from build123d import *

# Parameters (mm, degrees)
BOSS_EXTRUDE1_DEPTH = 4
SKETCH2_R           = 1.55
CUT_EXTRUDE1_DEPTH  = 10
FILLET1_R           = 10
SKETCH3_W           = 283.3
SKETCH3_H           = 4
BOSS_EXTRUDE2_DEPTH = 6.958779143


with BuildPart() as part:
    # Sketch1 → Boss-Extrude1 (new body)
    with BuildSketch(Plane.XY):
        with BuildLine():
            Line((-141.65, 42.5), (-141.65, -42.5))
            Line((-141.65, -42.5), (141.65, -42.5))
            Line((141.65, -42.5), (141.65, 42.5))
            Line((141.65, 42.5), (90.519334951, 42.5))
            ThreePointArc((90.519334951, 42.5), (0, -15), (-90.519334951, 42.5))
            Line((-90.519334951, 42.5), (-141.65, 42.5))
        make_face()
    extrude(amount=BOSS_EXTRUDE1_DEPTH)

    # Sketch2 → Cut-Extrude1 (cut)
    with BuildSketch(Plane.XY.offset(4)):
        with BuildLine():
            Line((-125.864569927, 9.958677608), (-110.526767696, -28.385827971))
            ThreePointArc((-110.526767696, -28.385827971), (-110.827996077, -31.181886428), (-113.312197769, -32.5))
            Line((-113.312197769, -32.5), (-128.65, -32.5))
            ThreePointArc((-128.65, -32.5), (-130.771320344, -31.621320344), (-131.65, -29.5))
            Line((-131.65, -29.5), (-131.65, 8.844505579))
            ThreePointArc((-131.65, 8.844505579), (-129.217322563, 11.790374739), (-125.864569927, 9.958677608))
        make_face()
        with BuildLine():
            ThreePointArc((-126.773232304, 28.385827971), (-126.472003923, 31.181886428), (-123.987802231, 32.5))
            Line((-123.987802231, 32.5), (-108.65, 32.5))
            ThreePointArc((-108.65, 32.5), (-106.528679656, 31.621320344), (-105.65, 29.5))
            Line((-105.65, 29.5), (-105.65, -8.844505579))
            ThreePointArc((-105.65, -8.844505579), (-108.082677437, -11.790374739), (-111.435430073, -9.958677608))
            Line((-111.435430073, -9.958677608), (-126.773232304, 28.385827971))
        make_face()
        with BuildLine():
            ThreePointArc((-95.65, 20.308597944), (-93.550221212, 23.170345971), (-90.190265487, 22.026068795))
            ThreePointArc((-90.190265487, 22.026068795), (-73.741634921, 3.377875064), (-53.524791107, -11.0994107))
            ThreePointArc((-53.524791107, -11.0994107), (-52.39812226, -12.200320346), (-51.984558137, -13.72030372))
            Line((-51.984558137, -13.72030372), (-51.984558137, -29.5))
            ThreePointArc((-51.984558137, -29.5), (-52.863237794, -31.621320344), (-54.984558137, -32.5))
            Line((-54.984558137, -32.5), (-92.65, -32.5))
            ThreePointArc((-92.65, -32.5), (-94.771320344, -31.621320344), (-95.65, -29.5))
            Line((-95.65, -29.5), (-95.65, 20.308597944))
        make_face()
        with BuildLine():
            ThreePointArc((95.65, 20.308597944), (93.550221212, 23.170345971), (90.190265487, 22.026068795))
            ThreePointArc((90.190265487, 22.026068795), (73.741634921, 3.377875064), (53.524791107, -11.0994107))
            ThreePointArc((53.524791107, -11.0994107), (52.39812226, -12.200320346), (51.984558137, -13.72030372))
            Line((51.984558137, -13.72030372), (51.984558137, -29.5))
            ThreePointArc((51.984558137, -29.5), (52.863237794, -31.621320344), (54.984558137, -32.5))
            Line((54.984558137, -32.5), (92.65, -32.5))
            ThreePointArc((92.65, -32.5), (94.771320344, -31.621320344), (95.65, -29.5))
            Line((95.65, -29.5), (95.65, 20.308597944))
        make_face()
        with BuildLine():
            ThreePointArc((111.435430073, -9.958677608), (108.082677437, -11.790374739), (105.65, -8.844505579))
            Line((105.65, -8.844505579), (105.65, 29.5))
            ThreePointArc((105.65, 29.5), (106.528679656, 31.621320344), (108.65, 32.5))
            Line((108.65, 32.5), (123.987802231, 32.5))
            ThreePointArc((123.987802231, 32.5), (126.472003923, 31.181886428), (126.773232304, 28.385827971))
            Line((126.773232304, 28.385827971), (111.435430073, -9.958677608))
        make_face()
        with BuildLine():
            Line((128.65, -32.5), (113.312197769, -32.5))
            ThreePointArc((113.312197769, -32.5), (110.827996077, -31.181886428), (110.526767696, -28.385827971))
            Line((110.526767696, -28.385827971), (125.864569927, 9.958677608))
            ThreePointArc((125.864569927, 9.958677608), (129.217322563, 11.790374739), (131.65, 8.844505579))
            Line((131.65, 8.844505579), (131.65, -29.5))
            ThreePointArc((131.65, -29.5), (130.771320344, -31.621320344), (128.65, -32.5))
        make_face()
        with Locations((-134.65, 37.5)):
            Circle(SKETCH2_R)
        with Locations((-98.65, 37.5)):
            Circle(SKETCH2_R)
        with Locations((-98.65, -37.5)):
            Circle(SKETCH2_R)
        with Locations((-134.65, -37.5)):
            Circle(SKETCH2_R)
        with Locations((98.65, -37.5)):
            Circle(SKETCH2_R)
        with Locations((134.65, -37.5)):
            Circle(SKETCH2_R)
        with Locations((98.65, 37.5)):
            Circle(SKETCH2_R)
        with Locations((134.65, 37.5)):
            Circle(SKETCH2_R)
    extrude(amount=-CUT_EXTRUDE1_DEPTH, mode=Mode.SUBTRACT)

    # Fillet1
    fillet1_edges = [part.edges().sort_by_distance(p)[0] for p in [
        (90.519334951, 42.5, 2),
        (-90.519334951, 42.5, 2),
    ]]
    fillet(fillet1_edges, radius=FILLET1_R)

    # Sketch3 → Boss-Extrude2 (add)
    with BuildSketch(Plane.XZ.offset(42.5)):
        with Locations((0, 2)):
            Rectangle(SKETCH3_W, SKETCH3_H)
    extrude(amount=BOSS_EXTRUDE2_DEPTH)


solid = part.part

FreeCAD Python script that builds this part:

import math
import FreeCAD as App
import Part
import Sketcher

V = App.Vector


def edges_at(feature, points):
    """Names of the edges that pass closest to the given points."""
    edges = feature.Shape.Edges
    near = lambda p: min(range(len(edges)), key=lambda i: edges[i].distToShape(Part.Vertex(*p))[0])
    return sorted({f"Edge{near(p) + 1}" for p in points})


def add_polygon(sketch, points):
    """Adds a closed chain of lines whose ends are joined by coincident constraints."""
    first, n = sketch.GeometryCount, len(points)
    for a, b in zip(points, points[1:] + points[:1]):
        sketch.addGeometry(Part.LineSegment(App.Vector(*a, 0), App.Vector(*b, 0)), False)
    for i in range(n):
        sketch.addConstraint(Sketcher.Constraint("Coincident", first + i, 2, first + (i + 1) % n, 1))

doc = App.newDocument("Part")
body = doc.addObject("PartDesign::Body", "Body")

sketch1 = doc.addObject("Sketcher::SketchObject", "Sketch")
body.addObject(sketch1)
sketch1.AttachmentSupport = (doc.XY_Plane, [""])
sketch1.MapMode = "FlatFace"
sketch1.addGeometry(Part.LineSegment(V(-142, 42, 0), V(-142, -42, 0)), False)
sketch1.addGeometry(Part.LineSegment(V(-142, -42, 0), V(142, -42, 0)), False)
sketch1.addGeometry(Part.LineSegment(V(142, -42, 0), V(142, 42, 0)), False)
sketch1.addGeometry(Part.LineSegment(V(142, 42, 0), V(91, 42, 0)), False)
sketch1.addGeometry(Part.ArcOfCircle(Part.Circle(V(0, 85, 0), V(0, 0, 1), 100), math.radians(-155), math.radians(-25)), False)
sketch1.addGeometry(Part.LineSegment(V(-91, 42, 0), V(-142, 42, 0)), False)
sketch1.addConstraint(Sketcher.Constraint("Coincident", 0, 2, 1, 1))
sketch1.addConstraint(Sketcher.Constraint("Coincident", 1, 2, 2, 1))
sketch1.addConstraint(Sketcher.Constraint("Coincident", 2, 2, 3, 1))
sketch1.addConstraint(Sketcher.Constraint("Coincident", 3, 2, 4, 2))
sketch1.addConstraint(Sketcher.Constraint("Coincident", 4, 1, 5, 1))
sketch1.addConstraint(Sketcher.Constraint("Coincident", 5, 2, 0, 1))
sketch1.addConstraint(Sketcher.Constraint("Vertical", 0))
sketch1.addConstraint(Sketcher.Constraint("Horizontal", 1))
sketch1.addConstraint(Sketcher.Constraint("Vertical", 2))
sketch1.addConstraint(Sketcher.Constraint("Horizontal", 3))
sketch1.addConstraint(Sketcher.Constraint("Horizontal", 5))
sketch1.addConstraint(Sketcher.Constraint("Symmetric", 0, 2, 2, 2, -1, 1))
sketch1.addConstraint(Sketcher.Constraint("Symmetric", 3, 2, 4, 1, -2))
sketch1.addConstraint(Sketcher.Constraint("Radius", 4, 100.0))
sketch1.addConstraint(Sketcher.Constraint("DistanceY", 0, 2, 0, 1, 85.0))
sketch1.addConstraint(Sketcher.Constraint("DistanceX", 1, 1, 1, 2, 283.3))
sketch1.addConstraint(Sketcher.Constraint("DistanceY", -1, 1, 4, 3, 85.0))
pad1 = doc.addObject("PartDesign::Pad", "Pad")
body.addObject(pad1)
pad1.Profile = sketch1
pad1.Length = 4

sketch2 = doc.addObject("Sketcher::SketchObject", "Sketch001")
body.addObject(sketch2)
sketch2.AttachmentSupport = (doc.XY_Plane, [""])
sketch2.MapMode = "FlatFace"
sketch2.AttachmentOffset = App.Placement(V(0, 0, 4), App.Rotation())
sketch2.addGeometry(Part.LineSegment(V(-110.5, -28.4, 0), V(-125.9, 10, 0)), False)
sketch2.addGeometry(Part.ArcOfCircle(Part.Circle(V(-128.7, 8.8, 0), V(0, 0, 1), 3), math.radians(22), math.radians(180)), False)
sketch2.addGeometry(Part.LineSegment(V(-131.7, 8.8, 0), V(-131.7, -29.5, 0)), False)
sketch2.addGeometry(Part.ArcOfCircle(Part.Circle(V(-128.7, -29.5, 0), V(0, 0, 1), 3), math.radians(180), math.radians(270)), False)
sketch2.addGeometry(Part.LineSegment(V(-128.7, -32.5, 0), V(-113.3, -32.5, 0)), False)
sketch2.addGeometry(Part.ArcOfCircle(Part.Circle(V(-113.3, -29.5, 0), V(0, 0, 1), 3), math.radians(-90), math.radians(22)), False)
sketch2.addGeometry(Part.ArcOfCircle(Part.Circle(V(-124, 29.5, 0), V(0, 0, 1), 3), math.radians(90), math.radians(202)), False)
sketch2.addGeometry(Part.LineSegment(V(-126.8, 28.4, 0), V(-111.4, -10, 0)), False)
sketch2.addGeometry(Part.ArcOfCircle(Part.Circle(V(-108.7, -8.8, 0), V(0, 0, 1), 3), math.radians(-158), math.radians(0)), False)
sketch2.addGeometry(Part.LineSegment(V(-105.7, -8.8, 0), V(-105.7, 29.5, 0)), False)
sketch2.addGeometry(Part.ArcOfCircle(Part.Circle(V(-108.6, 29.5, 0), V(0, 0, 1), 3), math.radians(0), math.radians(90)), False)
sketch2.addGeometry(Part.LineSegment(V(-108.7, 32.5, 0), V(-124, 32.5, 0)), False)
sketch2.addGeometry(Part.ArcOfCircle(Part.Circle(V(-92.7, 20.3, 0), V(0, 0, 1), 3), math.radians(35), math.radians(180)), False)
sketch2.addGeometry(Part.LineSegment(V(-95.7, 20.3, 0), V(-95.7, -29.5, 0)), False)
sketch2.addGeometry(Part.ArcOfCircle(Part.Circle(V(-92.7, -29.5, 0), V(0, 0, 1), 3), math.radians(180), math.radians(270)), False)
sketch2.addGeometry(Part.LineSegment(V(-92.7, -32.5, 0), V(-55, -32.5, 0)), False)
sketch2.addGeometry(Part.ArcOfCircle(Part.Circle(V(-55, -29.5, 0), V(0, 0, 1), 3), math.radians(-90), math.radians(0)), False)
sketch2.addGeometry(Part.LineSegment(V(-52, -29.5, 0), V(-52, -13.7, 0)), False)
sketch2.addGeometry(Part.ArcOfCircle(Part.Circle(V(-55, -13.7, 0), V(0, 0, 1), 3), math.radians(0), math.radians(61)), False)
sketch2.addGeometry(Part.ArcOfCircle(Part.Circle(V(0, 85, 0), V(0, 0, 1), 110), math.radians(-145), math.radians(-119)), False)
sketch2.addGeometry(Part.ArcOfCircle(Part.Circle(V(92.7, 20.3, 0), V(0, 0, 1), 3), math.radians(0), math.radians(145)), False)
sketch2.addGeometry(Part.ArcOfCircle(Part.Circle(V(0, 85, 0), V(0, 0, 1), 110), math.radians(-61), math.radians(-35)), False)
sketch2.addGeometry(Part.ArcOfCircle(Part.Circle(V(55, -13.7, 0), V(0, 0, 1), 3), math.radians(119), math.radians(180)), False)
sketch2.addGeometry(Part.LineSegment(V(52, -13.7, 0), V(52, -29.5, 0)), False)
sketch2.addGeometry(Part.ArcOfCircle(Part.Circle(V(55, -29.5, 0), V(0, 0, 1), 3), math.radians(180), math.radians(270)), False)
sketch2.addGeometry(Part.LineSegment(V(55, -32.5, 0), V(92.7, -32.5, 0)), False)
sketch2.addGeometry(Part.ArcOfCircle(Part.Circle(V(92.7, -29.5, 0), V(0, 0, 1), 3), math.radians(-90), math.radians(0)), False)
sketch2.addGeometry(Part.LineSegment(V(95.7, -29.5, 0), V(95.7, 20.3, 0)), False)
sketch2.addGeometry(Part.ArcOfCircle(Part.Circle(V(108.7, -8.8, 0), V(0, 0, 1), 3), math.radians(180), math.radians(338)), False)
sketch2.addGeometry(Part.LineSegment(V(111.4, -10, 0), V(126.8, 28.4, 0)), False)
sketch2.addGeometry(Part.ArcOfCircle(Part.Circle(V(124, 29.5, 0), V(0, 0, 1), 3), math.radians(-22), math.radians(90)), False)
sketch2.addGeometry(Part.LineSegment(V(124, 32.5, 0), V(108.7, 32.5, 0)), False)
sketch2.addGeometry(Part.ArcOfCircle(Part.Circle(V(108.6, 29.5, 0), V(0, 0, 1), 3), math.radians(90), math.radians(180)), False)
sketch2.addGeometry(Part.LineSegment(V(105.7, 29.5, 0), V(105.7, -8.8, 0)), False)
sketch2.addGeometry(Part.LineSegment(V(113.3, -32.5, 0), V(128.7, -32.5, 0)), False)
sketch2.addGeometry(Part.ArcOfCircle(Part.Circle(V(128.7, -29.5, 0), V(0, 0, 1), 3), math.radians(-90), math.radians(0)), False)
sketch2.addGeometry(Part.LineSegment(V(131.7, -29.5, 0), V(131.7, 8.8, 0)), False)
sketch2.addGeometry(Part.ArcOfCircle(Part.Circle(V(128.7, 8.8, 0), V(0, 0, 1), 3), math.radians(0), math.radians(158)), False)
sketch2.addGeometry(Part.LineSegment(V(125.9, 10, 0), V(110.5, -28.4, 0)), False)
sketch2.addGeometry(Part.ArcOfCircle(Part.Circle(V(113.3, -29.5, 0), V(0, 0, 1), 3), math.radians(158), math.radians(270)), False)
sketch2.addGeometry(Part.Circle(V(-134.7, 37.5, 0), V(0, 0, 1), 1.6), False)
sketch2.addGeometry(Part.Circle(V(-98.7, 37.5, 0), V(0, 0, 1), 1.6), False)
sketch2.addGeometry(Part.Circle(V(-98.7, -37.5, 0), V(0, 0, 1), 1.6), False)
sketch2.addGeometry(Part.Circle(V(-134.7, -37.5, 0), V(0, 0, 1), 1.6), False)
sketch2.addGeometry(Part.Circle(V(98.7, -37.5, 0), V(0, 0, 1), 1.6), False)
sketch2.addGeometry(Part.Circle(V(134.7, -37.5, 0), V(0, 0, 1), 1.6), False)
sketch2.addGeometry(Part.Circle(V(98.7, 37.5, 0), V(0, 0, 1), 1.6), False)
sketch2.addGeometry(Part.Circle(V(134.7, 37.5, 0), V(0, 0, 1), 1.6), False)
sketch2.addConstraint(Sketcher.Constraint("Tangent", 0, 2, 1, 1))
sketch2.addConstraint(Sketcher.Constraint("Tangent", 1, 2, 2, 1))
sketch2.addConstraint(Sketcher.Constraint("Tangent", 2, 2, 3, 1))
sketch2.addConstraint(Sketcher.Constraint("Tangent", 3, 2, 4, 1))
sketch2.addConstraint(Sketcher.Constraint("Tangent", 4, 2, 5, 1))
sketch2.addConstraint(Sketcher.Constraint("Tangent", 5, 2, 0, 1))
sketch2.addConstraint(Sketcher.Constraint("Tangent", 6, 2, 7, 1))
sketch2.addConstraint(Sketcher.Constraint("Tangent", 7, 2, 8, 1))
sketch2.addConstraint(Sketcher.Constraint("Tangent", 8, 2, 9, 1))
sketch2.addConstraint(Sketcher.Constraint("Tangent", 9, 2, 10, 1))
sketch2.addConstraint(Sketcher.Constraint("Tangent", 10, 2, 11, 1))
sketch2.addConstraint(Sketcher.Constraint("Tangent", 11, 2, 6, 1))
sketch2.addConstraint(Sketcher.Constraint("Tangent", 12, 2, 13, 1))
sketch2.addConstraint(Sketcher.Constraint("Tangent", 13, 2, 14, 1))
sketch2.addConstraint(Sketcher.Constraint("Tangent", 14, 2, 15, 1))
sketch2.addConstraint(Sketcher.Constraint("Tangent", 15, 2, 16, 1))
sketch2.addConstraint(Sketcher.Constraint("Tangent", 16, 2, 17, 1))
sketch2.addConstraint(Sketcher.Constraint("Tangent", 17, 2, 18, 1))
sketch2.addConstraint(Sketcher.Constraint("Tangent", 18, 2, 19, 2))
sketch2.addConstraint(Sketcher.Constraint("Tangent", 19, 1, 12, 1))
sketch2.addConstraint(Sketcher.Constraint("Tangent", 20, 2, 21, 2))
sketch2.addConstraint(Sketcher.Constraint("Tangent", 21, 1, 22, 1))
sketch2.addConstraint(Sketcher.Constraint("Tangent", 22, 2, 23, 1))
sketch2.addConstraint(Sketcher.Constraint("Tangent", 23, 2, 24, 1))
sketch2.addConstraint(Sketcher.Constraint("Tangent", 24, 2, 25, 1))
sketch2.addConstraint(Sketcher.Constraint("Tangent", 25, 2, 26, 1))
sketch2.addConstraint(Sketcher.Constraint("Tangent", 26, 2, 27, 1))
sketch2.addConstraint(Sketcher.Constraint("Tangent", 27, 2, 20, 1))
sketch2.addConstraint(Sketcher.Constraint("Tangent", 28, 2, 29, 1))
sketch2.addConstraint(Sketcher.Constraint("Tangent", 29, 2, 30, 1))
sketch2.addConstraint(Sketcher.Constraint("Tangent", 30, 2, 31, 1))
sketch2.addConstraint(Sketcher.Constraint("Tangent", 31, 2, 32, 1))
sketch2.addConstraint(Sketcher.Constraint("Tangent", 32, 2, 33, 1))
sketch2.addConstraint(Sketcher.Constraint("Tangent", 33, 2, 28, 1))
sketch2.addConstraint(Sketcher.Constraint("Tangent", 34, 2, 35, 1))
sketch2.addConstraint(Sketcher.Constraint("Tangent", 35, 2, 36, 1))
sketch2.addConstraint(Sketcher.Constraint("Tangent", 36, 2, 37, 1))
sketch2.addConstraint(Sketcher.Constraint("Tangent", 37, 2, 38, 1))
sketch2.addConstraint(Sketcher.Constraint("Tangent", 38, 2, 39, 1))
sketch2.addConstraint(Sketcher.Constraint("Tangent", 39, 2, 34, 1))
sketch2.addConstraint(Sketcher.Constraint("Vertical", 2))
sketch2.addConstraint(Sketcher.Constraint("Horizontal", 4))
sketch2.addConstraint(Sketcher.Constraint("Vertical", 9))
sketch2.addConstraint(Sketcher.Constraint("Horizontal", 11))
sketch2.addConstraint(Sketcher.Constraint("Vertical", 13))
sketch2.addConstraint(Sketcher.Constraint("Horizontal", 15))
sketch2.addConstraint(Sketcher.Constraint("Vertical", 17))
sketch2.addConstraint(Sketcher.Constraint("Vertical", 23))
sketch2.addConstraint(Sketcher.Constraint("Horizontal", 25))
sketch2.addConstraint(Sketcher.Constraint("Vertical", 27))
sketch2.addConstraint(Sketcher.Constraint("Horizontal", 31))
sketch2.addConstraint(Sketcher.Constraint("Vertical", 33))
sketch2.addConstraint(Sketcher.Constraint("Horizontal", 34))
sketch2.addConstraint(Sketcher.Constraint("Vertical", 36))
sketch2.addConstraint(Sketcher.Constraint("Coincident", 21, 3, 19, 3))
sketch2.addConstraint(Sketcher.Constraint("Equal", 1, 3))
sketch2.addConstraint(Sketcher.Constraint("Equal", 3, 5))
sketch2.addConstraint(Sketcher.Constraint("Equal", 5, 6))
sketch2.addConstraint(Sketcher.Constraint("Equal", 6, 8))
sketch2.addConstraint(Sketcher.Constraint("Equal", 8, 10))
sketch2.addConstraint(Sketcher.Constraint("Equal", 10, 12))
sketch2.addConstraint(Sketcher.Constraint("Equal", 12, 14))
sketch2.addConstraint(Sketcher.Constraint("Equal", 14, 16))
sketch2.addConstraint(Sketcher.Constraint("Equal", 16, 18))
sketch2.addConstraint(Sketcher.Constraint("Equal", 18, 20))
sketch2.addConstraint(Sketcher.Constraint("Equal", 19, 21))
sketch2.addConstraint(Sketcher.Constraint("Equal", 20, 22))
sketch2.addConstraint(Sketcher.Constraint("Equal", 22, 24))
sketch2.addConstraint(Sketcher.Constraint("Equal", 24, 26))
sketch2.addConstraint(Sketcher.Constraint("Equal", 26, 28))
sketch2.addConstraint(Sketcher.Constraint("Equal", 28, 30))
sketch2.addConstraint(Sketcher.Constraint("Equal", 30, 32))
sketch2.addConstraint(Sketcher.Constraint("Equal", 32, 35))
sketch2.addConstraint(Sketcher.Constraint("Equal", 35, 37))
sketch2.addConstraint(Sketcher.Constraint("Equal", 37, 39))
sketch2.addConstraint(Sketcher.Constraint("Equal", 40, 41))
sketch2.addConstraint(Sketcher.Constraint("Equal", 41, 42))
sketch2.addConstraint(Sketcher.Constraint("Equal", 42, 43))
sketch2.addConstraint(Sketcher.Constraint("Equal", 43, 44))
sketch2.addConstraint(Sketcher.Constraint("Equal", 44, 45))
sketch2.addConstraint(Sketcher.Constraint("Equal", 45, 46))
sketch2.addConstraint(Sketcher.Constraint("Equal", 46, 47))
sketch2.addConstraint(Sketcher.Constraint("Symmetric", 41, 3, 44, 3, -1, 1))
sketch2.addConstraint(Sketcher.Constraint("Symmetric", 40, 3, 45, 3, -1, 1))
sketch2.addConstraint(Sketcher.Constraint("Symmetric", 42, 3, 46, 3, -1, 1))
sketch2.addConstraint(Sketcher.Constraint("Symmetric", 43, 3, 47, 3, -1, 1))
sketch2.addConstraint(Sketcher.Constraint("Symmetric", 12, 3, 20, 3, -2))
sketch2.addConstraint(Sketcher.Constraint("Symmetric", 16, 3, 24, 3, -2))
sketch2.addConstraint(Sketcher.Constraint("Symmetric", 8, 3, 28, 3, -2))
sketch2.addConstraint(Sketcher.Constraint("Symmetric", 6, 3, 30, 3, -2))
sketch2.addConstraint(Sketcher.Constraint("Symmetric", 3, 3, 35, 3, -2))
sketch2.addConstraint(Sketcher.Constraint("Symmetric", 42, 3, 44, 3, -2))
sketch2.addConstraint(Sketcher.Constraint("Symmetric", 43, 3, 45, 3, -2))
sketch2.addConstraint(Sketcher.Constraint("Symmetric", 0, 2, 37, 2, -2))
sketch2.addConstraint(Sketcher.Constraint("Parallel", 0, 7))
sketch2.addConstraint(Sketcher.Constraint("Horizontal", 5, 3, 14, 3))
sketch2.addConstraint(Sketcher.Constraint("Horizontal", 40, 3, 41, 3))
sketch2.addConstraint(Sketcher.Constraint("Equal", 4, 11))
sketch2.addConstraint(Sketcher.Constraint("Radius", 1, 3.0))
sketch2.addConstraint(Sketcher.Constraint("Radius", 19, 110.0))
sketch2.addConstraint(Sketcher.Constraint("Diameter", 40, 3.1))
sketch2.addConstraint(Sketcher.Constraint("DistanceY", -1, 1, 19, 3, 85.0))
sketch2.addConstraint(Sketcher.Constraint("DistanceY", 3, 3, -1, 1, 29.5))
sketch2.addConstraint(Sketcher.Constraint("DistanceY", -1, 1, 6, 3, 29.5))
sketch2.addConstraint(Sketcher.Constraint("DistanceY", -1, 1, 40, 3, 37.5))
sketch2.addConstraint(Sketcher.Constraint("DistanceX", 1, 3, -1, 1, 128.65))
sketch2.addConstraint(Sketcher.Constraint("DistanceX", 8, 3, -1, 1, 108.65))
sketch2.addConstraint(Sketcher.Constraint("DistanceX", 12, 3, -1, 1, 92.65))
sketch2.addConstraint(Sketcher.Constraint("DistanceX", 40, 3, -1, 1, 134.65))
sketch2.addConstraint(Sketcher.Constraint("DistanceX", 41, 3, -1, 1, 98.65))
sketch2.addConstraint(Sketcher.Constraint("DistanceX", 15, 1, 15, 2, 37.665442))
sketch2.addConstraint(Sketcher.Constraint("DistanceX", 4, 1, 4, 2, 15.337802))
sketch2.addConstraint(Sketcher.Constraint("DistanceY", 2, 2, 2, 1, 38.344506))
pocket1 = doc.addObject("PartDesign::Pocket", "Pocket")
body.addObject(pocket1)
pocket1.Profile = sketch2
pocket1.Length = 10
doc.recompute()

fillet = doc.addObject("PartDesign::Fillet", "Fillet")
body.addObject(fillet)
fillet.Base = (pocket1, edges_at(pocket1, [(90.519, 42.5, 2), (-90.519, 42.5, 2)]))
fillet.Radius = 10

sketch3 = doc.addObject("Sketcher::SketchObject", "Sketch002")
body.addObject(sketch3)
sketch3.AttachmentSupport = (doc.XZ_Plane, [""])
sketch3.MapMode = "FlatFace"
sketch3.AttachmentOffset = App.Placement(V(0, 0, 42.5), App.Rotation())
add_polygon(sketch3, [(-141.7, 4), (-141.7, 0), (141.7, 0), (141.7, 4)])
sketch3.addConstraint(Sketcher.Constraint("Vertical", 0))
sketch3.addConstraint(Sketcher.Constraint("Horizontal", 1))
sketch3.addConstraint(Sketcher.Constraint("Vertical", 2))
sketch3.addConstraint(Sketcher.Constraint("Horizontal", 3))
sketch3.addConstraint(Sketcher.Constraint("Symmetric", 0, 2, 1, 2, -1, 1))
sketch3.addConstraint(Sketcher.Constraint("DistanceY", 0, 2, 0, 1, 4.0))
sketch3.addConstraint(Sketcher.Constraint("DistanceX", 1, 1, 1, 2, 283.3))
pad2 = doc.addObject("PartDesign::Pad", "Pad001")
body.addObject(pad2)
pad2.Profile = sketch3
pad2.Length = 6.958779

doc.recompute()
